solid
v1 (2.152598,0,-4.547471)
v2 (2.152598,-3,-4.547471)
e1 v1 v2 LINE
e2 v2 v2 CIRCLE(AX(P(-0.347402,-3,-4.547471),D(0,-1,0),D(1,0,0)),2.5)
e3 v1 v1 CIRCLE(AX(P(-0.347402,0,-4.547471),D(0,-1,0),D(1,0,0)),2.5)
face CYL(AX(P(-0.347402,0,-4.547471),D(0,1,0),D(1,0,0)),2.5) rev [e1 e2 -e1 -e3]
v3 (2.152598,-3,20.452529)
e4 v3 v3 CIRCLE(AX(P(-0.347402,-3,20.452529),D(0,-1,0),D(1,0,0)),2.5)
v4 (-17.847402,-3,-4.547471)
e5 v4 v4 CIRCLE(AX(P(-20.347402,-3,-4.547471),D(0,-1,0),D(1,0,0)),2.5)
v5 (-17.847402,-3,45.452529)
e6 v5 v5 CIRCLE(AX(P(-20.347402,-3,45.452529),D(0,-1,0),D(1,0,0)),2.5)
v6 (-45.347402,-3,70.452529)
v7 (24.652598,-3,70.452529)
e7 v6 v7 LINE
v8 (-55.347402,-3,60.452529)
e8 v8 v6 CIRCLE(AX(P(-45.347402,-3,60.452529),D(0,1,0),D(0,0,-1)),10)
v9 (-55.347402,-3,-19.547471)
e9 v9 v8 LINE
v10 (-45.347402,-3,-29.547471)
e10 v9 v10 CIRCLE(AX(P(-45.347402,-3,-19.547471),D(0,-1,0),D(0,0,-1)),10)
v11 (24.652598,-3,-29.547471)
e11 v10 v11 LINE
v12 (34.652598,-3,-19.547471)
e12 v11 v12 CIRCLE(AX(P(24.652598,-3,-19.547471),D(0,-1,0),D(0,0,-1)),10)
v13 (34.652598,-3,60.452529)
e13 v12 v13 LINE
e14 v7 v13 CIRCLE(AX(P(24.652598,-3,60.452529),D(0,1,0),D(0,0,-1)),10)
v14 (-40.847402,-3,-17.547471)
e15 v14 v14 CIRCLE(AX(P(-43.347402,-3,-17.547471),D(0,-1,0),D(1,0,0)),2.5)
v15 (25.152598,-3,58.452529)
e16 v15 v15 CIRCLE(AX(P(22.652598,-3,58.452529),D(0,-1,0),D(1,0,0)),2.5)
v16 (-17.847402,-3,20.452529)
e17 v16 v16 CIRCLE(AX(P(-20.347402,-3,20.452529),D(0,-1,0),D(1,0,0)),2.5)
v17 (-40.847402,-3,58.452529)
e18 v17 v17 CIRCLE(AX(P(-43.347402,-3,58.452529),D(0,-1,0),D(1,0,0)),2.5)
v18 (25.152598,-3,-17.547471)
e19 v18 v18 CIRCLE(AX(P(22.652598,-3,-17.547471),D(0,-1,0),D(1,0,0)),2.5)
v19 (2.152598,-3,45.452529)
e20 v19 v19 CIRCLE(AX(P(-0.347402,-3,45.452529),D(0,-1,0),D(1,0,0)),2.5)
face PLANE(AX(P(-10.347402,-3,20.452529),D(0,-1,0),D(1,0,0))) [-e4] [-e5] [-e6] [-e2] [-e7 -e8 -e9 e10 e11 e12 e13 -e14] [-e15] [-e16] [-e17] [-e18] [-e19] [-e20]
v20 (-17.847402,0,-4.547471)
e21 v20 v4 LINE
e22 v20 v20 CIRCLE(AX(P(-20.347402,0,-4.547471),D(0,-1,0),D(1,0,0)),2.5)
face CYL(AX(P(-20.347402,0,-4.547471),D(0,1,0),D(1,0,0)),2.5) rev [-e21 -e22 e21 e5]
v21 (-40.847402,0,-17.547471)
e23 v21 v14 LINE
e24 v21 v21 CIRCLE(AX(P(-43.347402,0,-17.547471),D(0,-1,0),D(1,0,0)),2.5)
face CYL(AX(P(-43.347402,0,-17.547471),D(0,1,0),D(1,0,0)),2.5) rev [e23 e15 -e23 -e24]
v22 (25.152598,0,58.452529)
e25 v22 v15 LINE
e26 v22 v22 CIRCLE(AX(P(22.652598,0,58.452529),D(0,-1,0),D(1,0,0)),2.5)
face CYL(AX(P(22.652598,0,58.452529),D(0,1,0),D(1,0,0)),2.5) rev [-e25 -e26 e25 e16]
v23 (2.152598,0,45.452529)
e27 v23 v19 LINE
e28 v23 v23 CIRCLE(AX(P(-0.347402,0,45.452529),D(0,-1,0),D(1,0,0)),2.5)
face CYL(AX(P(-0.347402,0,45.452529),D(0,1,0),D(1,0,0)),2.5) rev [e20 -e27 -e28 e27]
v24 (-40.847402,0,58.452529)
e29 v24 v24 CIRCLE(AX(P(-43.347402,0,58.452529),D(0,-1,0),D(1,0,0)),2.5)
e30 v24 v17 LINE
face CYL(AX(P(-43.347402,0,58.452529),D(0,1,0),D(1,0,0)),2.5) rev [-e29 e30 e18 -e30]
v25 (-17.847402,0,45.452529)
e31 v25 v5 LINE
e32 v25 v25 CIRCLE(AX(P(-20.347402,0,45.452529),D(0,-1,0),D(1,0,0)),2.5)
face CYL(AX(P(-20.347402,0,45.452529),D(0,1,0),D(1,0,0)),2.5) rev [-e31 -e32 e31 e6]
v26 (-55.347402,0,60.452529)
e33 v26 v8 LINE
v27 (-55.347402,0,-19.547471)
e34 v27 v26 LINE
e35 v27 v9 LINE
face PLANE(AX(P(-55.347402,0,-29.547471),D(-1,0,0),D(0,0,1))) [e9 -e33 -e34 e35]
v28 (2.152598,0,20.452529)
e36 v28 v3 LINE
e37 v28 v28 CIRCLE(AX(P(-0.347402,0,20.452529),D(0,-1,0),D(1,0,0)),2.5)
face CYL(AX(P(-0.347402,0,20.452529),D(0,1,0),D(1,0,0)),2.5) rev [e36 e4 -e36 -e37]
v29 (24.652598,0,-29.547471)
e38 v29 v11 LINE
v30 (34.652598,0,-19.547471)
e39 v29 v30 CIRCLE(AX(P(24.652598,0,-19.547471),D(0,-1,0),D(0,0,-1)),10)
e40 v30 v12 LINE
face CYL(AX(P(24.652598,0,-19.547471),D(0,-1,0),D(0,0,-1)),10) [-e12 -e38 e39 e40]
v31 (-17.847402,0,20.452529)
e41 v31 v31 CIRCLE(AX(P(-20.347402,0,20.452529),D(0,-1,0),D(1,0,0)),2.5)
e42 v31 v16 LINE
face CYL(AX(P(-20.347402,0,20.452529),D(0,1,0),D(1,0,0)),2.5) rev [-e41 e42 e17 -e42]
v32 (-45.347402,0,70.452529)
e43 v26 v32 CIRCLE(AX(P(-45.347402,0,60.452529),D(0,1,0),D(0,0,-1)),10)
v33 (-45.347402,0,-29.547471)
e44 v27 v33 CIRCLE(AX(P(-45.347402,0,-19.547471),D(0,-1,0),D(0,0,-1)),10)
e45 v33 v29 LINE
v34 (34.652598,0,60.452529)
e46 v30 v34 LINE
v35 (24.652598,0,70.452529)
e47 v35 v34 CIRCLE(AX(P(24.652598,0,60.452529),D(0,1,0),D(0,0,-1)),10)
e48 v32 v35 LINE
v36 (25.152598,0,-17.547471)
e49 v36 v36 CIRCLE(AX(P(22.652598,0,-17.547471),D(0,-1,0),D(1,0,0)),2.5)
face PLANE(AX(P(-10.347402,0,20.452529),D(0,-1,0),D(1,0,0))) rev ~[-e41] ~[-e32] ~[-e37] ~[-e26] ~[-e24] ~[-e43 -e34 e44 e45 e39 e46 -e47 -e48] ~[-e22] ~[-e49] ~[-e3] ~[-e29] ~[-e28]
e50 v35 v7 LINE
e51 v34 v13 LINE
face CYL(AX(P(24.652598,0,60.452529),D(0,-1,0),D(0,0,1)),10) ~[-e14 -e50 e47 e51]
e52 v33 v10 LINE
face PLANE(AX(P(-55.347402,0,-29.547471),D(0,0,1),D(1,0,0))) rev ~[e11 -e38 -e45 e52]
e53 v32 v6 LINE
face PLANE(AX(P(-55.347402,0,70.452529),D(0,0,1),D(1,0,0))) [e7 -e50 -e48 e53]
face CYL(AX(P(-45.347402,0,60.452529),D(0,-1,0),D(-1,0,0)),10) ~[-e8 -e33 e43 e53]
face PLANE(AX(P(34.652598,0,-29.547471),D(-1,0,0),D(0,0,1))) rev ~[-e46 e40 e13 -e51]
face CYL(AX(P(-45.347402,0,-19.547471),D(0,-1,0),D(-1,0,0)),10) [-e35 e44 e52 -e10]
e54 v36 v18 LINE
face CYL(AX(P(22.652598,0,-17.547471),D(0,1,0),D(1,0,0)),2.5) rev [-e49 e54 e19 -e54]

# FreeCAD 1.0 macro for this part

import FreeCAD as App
import Part
import Sketcher
from FreeCAD import Vector
Q = App.Units.Quantity


def edges_at(feature, points):
    """Names of the edges that pass closest to the given points."""
    edges = feature.Shape.Edges
    near = lambda p: min(range(len(edges)), key=lambda i: edges[i].distToShape(Part.Vertex(*p))[0])
    return sorted({f"Edge{near(p) + 1}" for p in points})


def add_polygon(sketch, points):
    """Adds a closed chain of lines whose ends are joined by coincident constraints."""
    first, n = sketch.GeometryCount, len(points)
    for a, b in zip(points, points[1:] + points[:1]):
        sketch.addGeometry(Part.LineSegment(App.Vector(*a, 0), App.Vector(*b, 0)), False)
    for i in range(n):
        sketch.addConstraint(Sketcher.Constraint("Coincident", first + i, 2, first + (i + 1) % n, 1))

doc = App.newDocument("Part")
body = doc.addObject("PartDesign::Body", "Body")

sketch1 = body.newObject("Sketcher::SketchObject", "Sketch")
sketch1.AttachmentSupport = (doc.getObject("XZ_Plane"), [""])
sketch1.MapMode = "FlatFace"
add_polygon(sketch1, [(-55.3, 70.5), (-55.3, -29.5), (34.7, -29.5), (34.7, 70.5)])
sketch1.addGeometry(Part.Circle(Vector(-43.3, -17.5, 0), Vector(0, 0, 1), 2.5), False)
sketch1.addGeometry(Part.Circle(Vector(-20.3, -4.5, 0), Vector(0, 0, 1), 2.5), False)
sketch1.addGeometry(Part.Circle(Vector(-0.3, -4.5, 0), Vector(0, 0, 1), 2.5), False)
sketch1.addGeometry(Part.Circle(Vector(22.7, -17.5, 0), Vector(0, 0, 1), 2.5), False)
sketch1.addGeometry(Part.Circle(Vector(-20.3, 20.5, 0), Vector(0, 0, 1), 2.5), False)
sketch1.addGeometry(Part.Circle(Vector(-43.3, 58.5, 0), Vector(0, 0, 1), 2.5), False)
sketch1.addGeometry(Part.Circle(Vector(-20.3, 45.5, 0), Vector(0, 0, 1), 2.5), False)
sketch1.addGeometry(Part.Circle(Vector(-0.3, 20.5, 0), Vector(0, 0, 1), 2.5), False)
sketch1.addGeometry(Part.Circle(Vector(-0.3, 45.5, 0), Vector(0, 0, 1), 2.5), False)
sketch1.addGeometry(Part.Circle(Vector(22.7, 58.5, 0), Vector(0, 0, 1), 2.5), False)
sketch1.addConstraint([
    Sketcher.Constraint("Vertical", 0),
    Sketcher.Constraint("Horizontal", 1),
    Sketcher.Constraint("Vertical", 2),
    Sketcher.Constraint("Horizontal", 3),
    Sketcher.Constraint("Equal", 4, 5),
    Sketcher.Constraint("Equal", 5, 6),
    Sketcher.Constraint("Equal", 6, 7),
    Sketcher.Constraint("Equal", 7, 8),
    Sketcher.Constraint("Equal", 8, 9),
    Sketcher.Constraint("Equal", 9, 10),
    Sketcher.Constraint("Equal", 10, 11),
    Sketcher.Constraint("Equal", 11, 12),
    Sketcher.Constraint("Equal", 12, 13),
    Sketcher.Constraint("Horizontal", 5, 3, 6, 3),
    Sketcher.Constraint("Horizontal", 4, 3, 7, 3),
    Sketcher.Constraint("Horizontal", 8, 3, 11, 3),
    Sketcher.Constraint("Horizontal", 10, 3, 12, 3),
    Sketcher.Constraint("Horizontal", 9, 3, 13, 3),
    Sketcher.Constraint("Vertical", 5, 3, 8, 3),
    Sketcher.Constraint("Vertical", 4, 3, 9, 3),
    Sketcher.Constraint("Vertical", 8, 3, 10, 3),
    Sketcher.Constraint("Vertical", 6, 3, 11, 3),
    Sketcher.Constraint("Vertical", 11, 3, 12, 3),
    Sketcher.Constraint("Vertical", 7, 3, 13, 3),
    Sketcher.Constraint("Diameter", 4, Q("5 mm")),
    Sketcher.Constraint("DistanceX", 1, 1, 1, 2, Q("90 mm")),
    Sketcher.Constraint("DistanceY", 0, 2, 0, 1, Q("100 mm")),
    Sketcher.Constraint("DistanceX", 4, 3, 5, 3, Q("23 mm")),
    Sketcher.Constraint("DistanceY", 4, 3, 5, 3, Q("13 mm")),
    Sketcher.Constraint("DistanceX", 5, 3, 6, 3, Q("20 mm")),
    Sketcher.Constraint("DistanceX", 6, 3, 7, 3, Q("23 mm")),
    Sketcher.Constraint("DistanceY", 5, 3, 8, 3, Q("25 mm")),
    Sketcher.Constraint("DistanceY", 8, 3, 9, 3, Q("38 mm")),
    Sketcher.Constraint("DistanceY", 8, 3, 10, 3, Q("25 mm")),
    Sketcher.Constraint("DistanceX", 0, 2, 4, 3, Q("12 mm")),
    Sketcher.Constraint("DistanceY", 0, 2, 4, 3, Q("12 mm")),
    Sketcher.Constraint("DistanceX", 5, 3, -1, 1, Q("20.347402 mm")),
    Sketcher.Constraint("DistanceY", 4, 3, -1, 1, Q("17.547471 mm")),
])
pad1 = body.newObject("PartDesign::Pad", "Pad")
pad1.Profile = sketch1
pad1.Length = 3
doc.recompute()

fillet = body.newObject("PartDesign::Fillet", "Fillet")
fillet.Base = (pad1, edges_at(pad1, [
    (34.653, -1.5, 70.453),
    (-55.347, -1.5, 70.453),
    (-55.347, -1.5, -29.547),
    (34.653, -1.5, -29.547),
]))
fillet.Radius = 10

doc.recompute()
